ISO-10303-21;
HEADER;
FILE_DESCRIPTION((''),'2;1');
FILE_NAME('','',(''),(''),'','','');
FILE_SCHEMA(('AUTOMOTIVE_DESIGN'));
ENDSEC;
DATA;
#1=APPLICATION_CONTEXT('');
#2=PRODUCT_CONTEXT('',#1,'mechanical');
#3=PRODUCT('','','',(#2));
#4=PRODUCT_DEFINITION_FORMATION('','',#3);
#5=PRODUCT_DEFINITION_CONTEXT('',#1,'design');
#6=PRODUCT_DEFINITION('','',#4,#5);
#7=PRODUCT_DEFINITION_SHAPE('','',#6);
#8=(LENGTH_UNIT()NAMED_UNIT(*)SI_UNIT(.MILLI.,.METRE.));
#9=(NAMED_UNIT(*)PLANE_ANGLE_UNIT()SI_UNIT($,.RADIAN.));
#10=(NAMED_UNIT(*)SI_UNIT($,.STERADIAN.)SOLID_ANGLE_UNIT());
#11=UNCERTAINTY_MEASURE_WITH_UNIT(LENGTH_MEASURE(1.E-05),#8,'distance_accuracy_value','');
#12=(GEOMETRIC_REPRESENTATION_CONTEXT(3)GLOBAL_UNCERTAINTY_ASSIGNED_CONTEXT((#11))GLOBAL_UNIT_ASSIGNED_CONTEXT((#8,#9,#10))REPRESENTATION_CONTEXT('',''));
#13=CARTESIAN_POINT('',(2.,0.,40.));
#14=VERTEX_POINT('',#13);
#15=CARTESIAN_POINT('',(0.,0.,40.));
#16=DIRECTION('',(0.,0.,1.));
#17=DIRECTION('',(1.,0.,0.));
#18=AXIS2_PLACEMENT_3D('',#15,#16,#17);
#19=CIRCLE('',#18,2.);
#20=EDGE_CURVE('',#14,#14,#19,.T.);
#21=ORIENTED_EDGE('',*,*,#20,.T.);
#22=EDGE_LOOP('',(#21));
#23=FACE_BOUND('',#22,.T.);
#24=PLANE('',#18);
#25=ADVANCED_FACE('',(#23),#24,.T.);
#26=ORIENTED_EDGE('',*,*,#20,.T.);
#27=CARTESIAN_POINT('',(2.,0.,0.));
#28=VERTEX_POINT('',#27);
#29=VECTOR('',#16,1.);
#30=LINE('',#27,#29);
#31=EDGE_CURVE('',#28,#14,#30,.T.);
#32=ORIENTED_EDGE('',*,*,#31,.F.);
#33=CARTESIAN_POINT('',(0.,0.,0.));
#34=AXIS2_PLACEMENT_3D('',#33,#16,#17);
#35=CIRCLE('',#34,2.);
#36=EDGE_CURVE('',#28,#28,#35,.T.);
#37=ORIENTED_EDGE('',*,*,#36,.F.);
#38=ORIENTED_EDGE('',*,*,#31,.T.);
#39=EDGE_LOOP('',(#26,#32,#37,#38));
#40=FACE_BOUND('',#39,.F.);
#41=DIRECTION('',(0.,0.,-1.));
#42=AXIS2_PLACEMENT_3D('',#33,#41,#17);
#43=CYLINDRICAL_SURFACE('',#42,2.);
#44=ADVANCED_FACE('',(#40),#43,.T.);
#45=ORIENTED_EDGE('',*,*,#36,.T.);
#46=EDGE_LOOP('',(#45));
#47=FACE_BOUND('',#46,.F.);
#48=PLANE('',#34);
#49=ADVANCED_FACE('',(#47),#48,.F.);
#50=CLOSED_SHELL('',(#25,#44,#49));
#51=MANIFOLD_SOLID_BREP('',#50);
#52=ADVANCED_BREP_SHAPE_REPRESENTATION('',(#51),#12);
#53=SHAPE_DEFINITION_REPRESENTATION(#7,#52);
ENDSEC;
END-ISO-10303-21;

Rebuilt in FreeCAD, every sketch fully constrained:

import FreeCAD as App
import Part
import Sketcher
from FreeCAD import Vector
Q = App.Units.Quantity

doc = App.newDocument("Part")
body = doc.addObject("PartDesign::Body", "Body")

sketch1 = body.newObject("Sketcher::SketchObject", "Sketch")
sketch1.AttachmentSupport = (doc.getObject("XY_Plane"), [""])
sketch1.MapMode = "FlatFace"
sketch1.addGeometry(Part.Circle(Vector(0, 0, 0), Vector(0, 0, 1), 2), False)
sketch1.addConstraint([
    Sketcher.Constraint("Coincident", 0, 3, -1, 1),
    Sketcher.Constraint("Diameter", 0, Q("4 mm")),
])
pad1 = body.newObject("PartDesign::Pad", "Pad")
pad1.Profile = sketch1
pad1.Length = 40

doc.recompute()
